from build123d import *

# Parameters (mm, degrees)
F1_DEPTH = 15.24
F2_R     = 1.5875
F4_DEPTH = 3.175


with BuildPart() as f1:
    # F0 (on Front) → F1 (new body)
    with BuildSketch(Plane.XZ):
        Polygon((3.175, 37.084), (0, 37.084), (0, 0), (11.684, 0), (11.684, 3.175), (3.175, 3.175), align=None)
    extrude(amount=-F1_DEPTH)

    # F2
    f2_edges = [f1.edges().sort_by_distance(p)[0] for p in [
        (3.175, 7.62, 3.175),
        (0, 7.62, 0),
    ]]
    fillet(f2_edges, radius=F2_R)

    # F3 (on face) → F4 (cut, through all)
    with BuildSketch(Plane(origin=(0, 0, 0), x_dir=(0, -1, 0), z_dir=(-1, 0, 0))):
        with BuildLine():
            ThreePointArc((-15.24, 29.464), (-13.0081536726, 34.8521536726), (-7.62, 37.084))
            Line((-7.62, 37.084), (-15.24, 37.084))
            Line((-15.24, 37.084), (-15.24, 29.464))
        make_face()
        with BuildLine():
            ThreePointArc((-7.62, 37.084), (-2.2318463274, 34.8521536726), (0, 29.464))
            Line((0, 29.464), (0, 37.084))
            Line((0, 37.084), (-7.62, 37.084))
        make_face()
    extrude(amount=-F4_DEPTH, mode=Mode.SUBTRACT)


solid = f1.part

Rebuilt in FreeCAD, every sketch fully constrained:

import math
import FreeCAD as App
import Part
import Sketcher
Q = App.Units.Quantity


def edges_at(feature, points):
    """Names of the edges that pass closest to the given points."""
    edges = feature.Shape.Edges
    near = lambda p: min(range(len(edges)), key=lambda i: edges[i].distToShape(Part.Vertex(*p))[0])
    return sorted({f"Edge{near(p) + 1}" for p in points})

doc = App.newDocument("Part")
body = doc.addObject("PartDesign::Body", "Body")

# Sketch on XZ plane
sketch1 = body.newObject("Sketcher::SketchObject", "Sketch")
sketch1.AttachmentSupport = (doc.getObject("XZ_Plane"), [""])
sketch1.MapMode = "FlatFace"
sketch1.addGeometry([
    Part.LineSegment(App.Vector(3.175, 37.084, 0), App.Vector(0, 37.084, 0)),  # 0
    Part.LineSegment(App.Vector(0, 37.084, 0), App.Vector(0, 0, 0)),  # 1
    Part.LineSegment(App.Vector(0, 0, 0), App.Vector(11.684, 0, 0)),  # 2
    Part.LineSegment(App.Vector(11.684, 0, 0), App.Vector(11.684, 3.175, 0)),  # 3
    Part.LineSegment(App.Vector(11.684, 3.175, 0), App.Vector(3.175, 3.175, 0)),  # 4
    Part.LineSegment(App.Vector(3.175, 3.175, 0), App.Vector(3.175, 37.084, 0)),  # 5
], False)
sketch1.addConstraint([
    Sketcher.Constraint("Coincident", 0, 2, 1, 1),
    Sketcher.Constraint("Coincident", 1, 2, 2, 1),
    Sketcher.Constraint("Coincident", 2, 2, 3, 1),
    Sketcher.Constraint("Coincident", 3, 2, 4, 1),
    Sketcher.Constraint("Coincident", 4, 2, 5, 1),
    Sketcher.Constraint("Coincident", 5, 2, 0, 1),
    Sketcher.Constraint("Horizontal", 0),
    Sketcher.Constraint("Vertical", 1),
    Sketcher.Constraint("Horizontal", 2),
    Sketcher.Constraint("Vertical", 3),
    Sketcher.Constraint("Horizontal", 4),
    Sketcher.Constraint("Vertical", 5),
    Sketcher.Constraint("Coincident", 1, 2, -1, 1),
    Sketcher.Constraint("Equal", 0, 3),
    Sketcher.Constraint("DistanceX", 2, 1, 2, 2, Q("0.46 in")),
    Sketcher.Constraint("DistanceY", 1, 2, 1, 1, Q("1.46 in")),
    Sketcher.Constraint("DistanceX", 0, 2, 0, 1, Q("0.125 in")),
])
pad1 = body.newObject("PartDesign::Pad", "Pad")
pad1.Profile = sketch1
pad1.Length = Q("0.6 in")
pad1.Reversed = True
doc.recompute()

fillet = body.newObject("PartDesign::Fillet", "Fillet")
fillet.Base = (pad1, edges_at(pad1, [(3.175, 7.62, 3.175), (0, 7.62, 0)]))
fillet.Radius = Q("0.0625 in")

# Sketch on YZ plane
sketch2 = body.newObject("Sketcher::SketchObject", "Sketch001")
sketch2.AttachmentSupport = (doc.getObject("YZ_Plane"), [""])
sketch2.MapMode = "FlatFace"
sketch2.addGeometry([
    Part.ArcOfCircle(Part.Circle(App.Vector(7.62, 29.464, 0), App.Vector(0, 0, 1), 7.62), math.radians(0), math.radians(90)),  # 0
    Part.LineSegment(App.Vector(7.62, 37.084, 0), App.Vector(15.24, 37.084, 0)),  # 1
    Part.LineSegment(App.Vector(15.24, 37.084, 0), App.Vector(15.24, 29.464, 0)),  # 2
    Part.ArcOfCircle(Part.Circle(App.Vector(7.62, 29.464, 0), App.Vector(0, 0, 1), 7.62), math.radians(90), math.radians(180)),  # 3
    Part.LineSegment(App.Vector(0, 29.464, 0), App.Vector(0, 37.084, 0)),  # 4
    Part.LineSegment(App.Vector(0, 37.084, 0), App.Vector(7.62, 37.084, 0)),  # 5
], False)
sketch2.addConstraint([
    Sketcher.Constraint("Tangent", 0, 2, 1, 1),
    Sketcher.Constraint("Coincident", 1, 2, 2, 1),
    Sketcher.Constraint("Tangent", 2, 2, 0, 1),
    Sketcher.Constraint("Tangent", 3, 2, 4, 1),
    Sketcher.Constraint("Coincident", 4, 2, 5, 1),
    Sketcher.Constraint("Tangent", 5, 2, 3, 1),
    Sketcher.Constraint("Horizontal", 1),
    Sketcher.Constraint("Vertical", 2),
    Sketcher.Constraint("Vertical", 4),
    Sketcher.Constraint("Horizontal", 5),
    Sketcher.Constraint("Coincident", 3, 3, 0, 3),
    Sketcher.Constraint("Equal", 0, 3),
    Sketcher.Constraint("PointOnObject", 3, 2, -2),
    Sketcher.Constraint("Radius", 0, Q("0.3 in")),
    Sketcher.Constraint("DistanceY", -1, 1, 0, 3, Q("1.16 in")),
])
pocket1 = body.newObject("PartDesign::Pocket", "Pocket")
pocket1.Profile = sketch2
pocket1.Type = "ThroughAll"
pocket1.Reversed = True

doc.recompute()
